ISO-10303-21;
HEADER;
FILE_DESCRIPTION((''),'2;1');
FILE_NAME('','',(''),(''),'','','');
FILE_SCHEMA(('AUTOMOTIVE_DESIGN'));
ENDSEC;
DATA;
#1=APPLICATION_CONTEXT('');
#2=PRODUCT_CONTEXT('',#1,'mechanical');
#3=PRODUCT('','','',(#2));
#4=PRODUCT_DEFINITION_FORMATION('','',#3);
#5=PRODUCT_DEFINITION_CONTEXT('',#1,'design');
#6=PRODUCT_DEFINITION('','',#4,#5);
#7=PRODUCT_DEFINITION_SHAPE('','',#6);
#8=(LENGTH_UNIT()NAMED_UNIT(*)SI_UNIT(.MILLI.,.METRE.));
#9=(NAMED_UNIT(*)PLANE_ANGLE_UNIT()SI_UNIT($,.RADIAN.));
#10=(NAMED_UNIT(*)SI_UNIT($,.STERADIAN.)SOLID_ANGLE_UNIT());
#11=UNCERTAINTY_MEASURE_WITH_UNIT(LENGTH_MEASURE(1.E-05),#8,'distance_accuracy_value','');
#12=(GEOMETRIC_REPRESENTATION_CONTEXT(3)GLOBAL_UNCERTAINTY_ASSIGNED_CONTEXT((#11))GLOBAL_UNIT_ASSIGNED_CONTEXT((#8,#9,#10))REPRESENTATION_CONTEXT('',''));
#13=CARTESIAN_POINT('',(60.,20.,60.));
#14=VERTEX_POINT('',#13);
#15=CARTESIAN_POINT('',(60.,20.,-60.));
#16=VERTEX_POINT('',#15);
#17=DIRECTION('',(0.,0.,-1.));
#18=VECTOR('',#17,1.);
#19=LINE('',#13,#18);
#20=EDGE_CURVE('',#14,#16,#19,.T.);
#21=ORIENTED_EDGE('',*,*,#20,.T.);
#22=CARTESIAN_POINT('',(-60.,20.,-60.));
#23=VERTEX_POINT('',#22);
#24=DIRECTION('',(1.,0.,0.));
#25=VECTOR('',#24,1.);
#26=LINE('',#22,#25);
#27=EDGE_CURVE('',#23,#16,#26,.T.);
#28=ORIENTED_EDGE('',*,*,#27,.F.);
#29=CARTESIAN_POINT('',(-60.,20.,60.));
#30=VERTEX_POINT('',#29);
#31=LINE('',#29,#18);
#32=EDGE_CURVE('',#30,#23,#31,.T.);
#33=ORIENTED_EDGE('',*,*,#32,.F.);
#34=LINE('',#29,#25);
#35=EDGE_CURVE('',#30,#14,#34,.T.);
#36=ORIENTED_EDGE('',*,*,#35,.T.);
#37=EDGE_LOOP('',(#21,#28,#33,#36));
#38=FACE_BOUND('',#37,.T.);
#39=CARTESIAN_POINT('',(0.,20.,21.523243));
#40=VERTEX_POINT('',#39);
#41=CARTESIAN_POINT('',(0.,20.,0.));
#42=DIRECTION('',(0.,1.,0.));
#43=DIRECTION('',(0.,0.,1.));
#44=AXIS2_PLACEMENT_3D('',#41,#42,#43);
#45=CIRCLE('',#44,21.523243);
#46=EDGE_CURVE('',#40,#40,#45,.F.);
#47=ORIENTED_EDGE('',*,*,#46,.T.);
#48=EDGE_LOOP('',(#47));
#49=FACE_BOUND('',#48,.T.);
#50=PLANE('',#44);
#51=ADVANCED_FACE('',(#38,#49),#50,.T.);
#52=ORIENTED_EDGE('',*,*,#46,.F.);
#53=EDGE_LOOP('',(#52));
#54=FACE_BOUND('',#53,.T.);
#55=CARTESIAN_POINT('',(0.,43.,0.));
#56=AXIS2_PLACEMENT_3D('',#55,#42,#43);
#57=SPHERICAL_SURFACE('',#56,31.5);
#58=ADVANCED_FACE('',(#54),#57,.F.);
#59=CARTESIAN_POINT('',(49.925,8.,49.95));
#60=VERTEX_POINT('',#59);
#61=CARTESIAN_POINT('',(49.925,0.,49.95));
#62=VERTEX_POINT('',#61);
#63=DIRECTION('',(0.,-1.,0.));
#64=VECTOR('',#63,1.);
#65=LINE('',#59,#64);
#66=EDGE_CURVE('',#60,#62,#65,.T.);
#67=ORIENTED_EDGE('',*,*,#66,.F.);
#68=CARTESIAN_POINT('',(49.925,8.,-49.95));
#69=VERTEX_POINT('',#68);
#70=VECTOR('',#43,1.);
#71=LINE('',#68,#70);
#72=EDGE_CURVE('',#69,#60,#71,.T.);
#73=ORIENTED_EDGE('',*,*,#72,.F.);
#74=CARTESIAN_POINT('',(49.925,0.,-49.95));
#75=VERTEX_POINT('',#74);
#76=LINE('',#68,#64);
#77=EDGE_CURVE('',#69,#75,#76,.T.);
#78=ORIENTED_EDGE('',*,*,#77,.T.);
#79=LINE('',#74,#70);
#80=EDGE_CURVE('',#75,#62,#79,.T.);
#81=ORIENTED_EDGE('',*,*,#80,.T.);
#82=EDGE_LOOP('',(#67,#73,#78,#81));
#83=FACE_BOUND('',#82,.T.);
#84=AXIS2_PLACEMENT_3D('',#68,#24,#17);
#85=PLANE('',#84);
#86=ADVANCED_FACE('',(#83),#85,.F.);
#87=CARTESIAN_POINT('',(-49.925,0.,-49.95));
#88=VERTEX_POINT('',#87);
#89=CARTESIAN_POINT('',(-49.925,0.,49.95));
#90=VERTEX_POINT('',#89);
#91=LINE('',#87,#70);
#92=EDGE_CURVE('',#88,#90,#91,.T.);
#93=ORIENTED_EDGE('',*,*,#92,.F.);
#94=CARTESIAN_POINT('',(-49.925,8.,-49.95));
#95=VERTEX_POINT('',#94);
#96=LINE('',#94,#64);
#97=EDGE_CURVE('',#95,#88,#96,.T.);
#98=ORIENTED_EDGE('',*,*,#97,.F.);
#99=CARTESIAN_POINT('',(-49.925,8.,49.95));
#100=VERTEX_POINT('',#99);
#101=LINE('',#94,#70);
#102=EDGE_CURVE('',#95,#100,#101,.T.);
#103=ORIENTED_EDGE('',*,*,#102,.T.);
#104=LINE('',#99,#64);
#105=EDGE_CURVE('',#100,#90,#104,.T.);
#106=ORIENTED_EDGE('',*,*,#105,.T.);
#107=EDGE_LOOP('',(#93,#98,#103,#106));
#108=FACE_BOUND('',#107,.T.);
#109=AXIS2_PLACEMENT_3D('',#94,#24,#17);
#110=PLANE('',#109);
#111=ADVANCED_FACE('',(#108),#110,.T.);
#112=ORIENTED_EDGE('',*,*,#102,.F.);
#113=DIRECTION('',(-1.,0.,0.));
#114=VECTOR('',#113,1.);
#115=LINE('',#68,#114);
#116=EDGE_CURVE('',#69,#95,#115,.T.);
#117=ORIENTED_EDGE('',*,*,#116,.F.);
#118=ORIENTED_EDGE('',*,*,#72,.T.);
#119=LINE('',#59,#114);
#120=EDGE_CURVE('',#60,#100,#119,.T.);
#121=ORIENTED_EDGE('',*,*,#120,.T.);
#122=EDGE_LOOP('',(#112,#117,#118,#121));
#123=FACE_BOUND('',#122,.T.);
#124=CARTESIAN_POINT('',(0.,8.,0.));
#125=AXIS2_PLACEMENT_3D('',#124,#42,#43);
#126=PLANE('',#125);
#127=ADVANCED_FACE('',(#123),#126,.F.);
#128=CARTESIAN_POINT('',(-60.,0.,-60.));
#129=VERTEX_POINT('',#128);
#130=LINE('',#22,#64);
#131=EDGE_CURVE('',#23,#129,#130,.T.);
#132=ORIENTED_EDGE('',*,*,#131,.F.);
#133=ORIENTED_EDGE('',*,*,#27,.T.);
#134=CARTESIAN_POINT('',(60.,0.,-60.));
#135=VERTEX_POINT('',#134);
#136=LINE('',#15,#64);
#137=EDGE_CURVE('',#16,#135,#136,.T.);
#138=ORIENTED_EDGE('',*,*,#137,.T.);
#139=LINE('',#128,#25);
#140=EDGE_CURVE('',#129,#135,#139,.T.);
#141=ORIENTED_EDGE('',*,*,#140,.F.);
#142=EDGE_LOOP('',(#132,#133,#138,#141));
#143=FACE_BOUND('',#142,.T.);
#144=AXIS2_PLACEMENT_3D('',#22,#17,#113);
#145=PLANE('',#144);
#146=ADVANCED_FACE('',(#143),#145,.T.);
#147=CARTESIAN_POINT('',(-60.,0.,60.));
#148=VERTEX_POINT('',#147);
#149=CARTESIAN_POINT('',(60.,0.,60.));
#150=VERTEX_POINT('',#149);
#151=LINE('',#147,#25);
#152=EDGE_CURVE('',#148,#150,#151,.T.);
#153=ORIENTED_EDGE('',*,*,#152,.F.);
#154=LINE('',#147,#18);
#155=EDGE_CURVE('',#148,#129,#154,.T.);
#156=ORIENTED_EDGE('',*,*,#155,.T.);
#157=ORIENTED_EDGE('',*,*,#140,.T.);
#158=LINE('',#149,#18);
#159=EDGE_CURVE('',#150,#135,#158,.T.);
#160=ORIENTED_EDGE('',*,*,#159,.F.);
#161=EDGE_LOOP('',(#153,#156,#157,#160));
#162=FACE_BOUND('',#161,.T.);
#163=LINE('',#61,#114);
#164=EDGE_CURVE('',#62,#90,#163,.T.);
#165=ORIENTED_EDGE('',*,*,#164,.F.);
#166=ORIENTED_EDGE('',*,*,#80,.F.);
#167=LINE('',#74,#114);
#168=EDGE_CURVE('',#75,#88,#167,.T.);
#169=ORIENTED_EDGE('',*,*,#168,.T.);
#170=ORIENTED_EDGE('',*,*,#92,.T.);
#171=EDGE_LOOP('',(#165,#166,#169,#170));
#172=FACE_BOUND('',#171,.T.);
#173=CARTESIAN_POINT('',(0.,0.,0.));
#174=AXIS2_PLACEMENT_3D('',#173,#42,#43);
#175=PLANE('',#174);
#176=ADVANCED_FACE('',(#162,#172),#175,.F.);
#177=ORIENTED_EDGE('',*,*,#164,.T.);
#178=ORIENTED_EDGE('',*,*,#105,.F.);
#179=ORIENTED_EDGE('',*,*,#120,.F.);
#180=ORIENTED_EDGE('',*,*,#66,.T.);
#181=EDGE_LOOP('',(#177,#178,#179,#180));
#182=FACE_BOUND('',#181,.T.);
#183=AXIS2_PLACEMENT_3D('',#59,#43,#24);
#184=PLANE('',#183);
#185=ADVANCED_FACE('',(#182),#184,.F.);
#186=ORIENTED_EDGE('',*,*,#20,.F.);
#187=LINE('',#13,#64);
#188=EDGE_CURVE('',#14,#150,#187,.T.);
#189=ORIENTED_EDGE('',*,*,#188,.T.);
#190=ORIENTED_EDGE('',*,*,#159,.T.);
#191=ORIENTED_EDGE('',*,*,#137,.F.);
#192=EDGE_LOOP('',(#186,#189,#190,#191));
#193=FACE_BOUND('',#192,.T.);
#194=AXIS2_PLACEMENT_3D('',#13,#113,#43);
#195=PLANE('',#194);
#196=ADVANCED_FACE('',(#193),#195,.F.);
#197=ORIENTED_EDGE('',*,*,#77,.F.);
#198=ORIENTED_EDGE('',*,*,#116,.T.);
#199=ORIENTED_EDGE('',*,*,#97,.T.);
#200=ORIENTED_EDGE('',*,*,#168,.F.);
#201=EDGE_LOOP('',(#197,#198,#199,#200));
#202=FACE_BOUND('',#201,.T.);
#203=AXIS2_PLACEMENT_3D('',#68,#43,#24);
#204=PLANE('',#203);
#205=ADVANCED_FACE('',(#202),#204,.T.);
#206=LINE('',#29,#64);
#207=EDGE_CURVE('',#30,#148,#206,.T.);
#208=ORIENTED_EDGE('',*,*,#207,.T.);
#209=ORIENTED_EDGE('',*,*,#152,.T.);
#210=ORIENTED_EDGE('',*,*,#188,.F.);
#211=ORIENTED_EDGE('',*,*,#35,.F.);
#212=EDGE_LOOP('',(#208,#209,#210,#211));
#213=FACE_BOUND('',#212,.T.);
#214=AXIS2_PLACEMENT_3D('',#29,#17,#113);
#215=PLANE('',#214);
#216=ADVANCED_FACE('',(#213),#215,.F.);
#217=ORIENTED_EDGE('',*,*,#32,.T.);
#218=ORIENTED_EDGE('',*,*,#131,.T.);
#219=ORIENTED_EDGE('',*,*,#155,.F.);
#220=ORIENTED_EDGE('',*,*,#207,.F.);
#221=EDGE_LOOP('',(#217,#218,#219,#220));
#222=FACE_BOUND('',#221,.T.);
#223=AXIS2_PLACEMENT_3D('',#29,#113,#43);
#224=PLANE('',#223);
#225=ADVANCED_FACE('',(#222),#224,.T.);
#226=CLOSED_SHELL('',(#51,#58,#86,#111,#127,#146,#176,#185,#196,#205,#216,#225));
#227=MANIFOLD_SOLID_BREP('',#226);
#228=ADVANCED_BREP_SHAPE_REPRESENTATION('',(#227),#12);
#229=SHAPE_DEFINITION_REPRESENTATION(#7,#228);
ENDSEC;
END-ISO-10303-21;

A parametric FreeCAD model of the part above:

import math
import FreeCAD as App
import Part
import Sketcher
from FreeCAD import Vector
Q = App.Units.Quantity


def add_polygon(sketch, points):
    """Adds a closed chain of lines whose ends are joined by coincident constraints."""
    first, n = sketch.GeometryCount, len(points)
    for a, b in zip(points, points[1:] + points[:1]):
        sketch.addGeometry(Part.LineSegment(App.Vector(*a, 0), App.Vector(*b, 0)), False)
    for i in range(n):
        sketch.addConstraint(Sketcher.Constraint("Coincident", first + i, 2, first + (i + 1) % n, 1))

doc = App.newDocument("Part")
body = doc.addObject("PartDesign::Body", "Body")

# Sketch on XZ plane
sketch1 = doc.addObject("Sketcher::SketchObject", "Sketch")
body.addObject(sketch1)
sketch1.AttachmentSupport = (doc.XZ_Plane, [""])
sketch1.MapMode = "FlatFace"
add_polygon(sketch1, [(-60, -60), (-60, 60), (60, 60), (60, -60)])  # lines 0-3
sketch1.addConstraint([
    Sketcher.Constraint("Vertical", 0),
    Sketcher.Constraint("Horizontal", 1),
    Sketcher.Constraint("Vertical", 2),
    Sketcher.Constraint("Horizontal", 3),
    Sketcher.Constraint("Symmetric", 0, 2, 2, 2, -1, 1),
    Sketcher.Constraint("Equal", 3, 0),
    Sketcher.Constraint("DistanceX", 1, 1, 1, 2, Q("120 mm")),
])
pad1 = doc.addObject("PartDesign::Pad", "Pad")
body.addObject(pad1)
pad1.Profile = sketch1
pad1.Length = 20
pad1.Reversed = True

# Sketch on XY plane
sketch2 = doc.addObject("Sketcher::SketchObject", "Sketch001")
body.addObject(sketch2)
sketch2.AttachmentSupport = (doc.XY_Plane, [""])
sketch2.MapMode = "FlatFace"
sketch2.addGeometry([
    Part.LineSegment(Vector(-32, 43, 0), Vector(32, 43, 0)),
    Part.ArcOfCircle(Part.Circle(Vector(0, 43, 0), Vector(0, 0, 1), 32), math.radians(0), math.radians(180)),
], False)
sketch2.addGeometry(Part.LineSegment(Vector(-32, 43, 0), Vector(32, 43, 0)), True)  # axis
sketch2.addConstraint([
    Sketcher.Constraint("Coincident", 0, 1, 1, 2),
    Sketcher.Constraint("Coincident", 1, 1, 0, 2),
    Sketcher.Constraint("Horizontal", 0),
    Sketcher.Constraint("Horizontal", 2),
    Sketcher.Constraint("Coincident", 2, 1, 0, 1),
    Sketcher.Constraint("PointOnObject", 1, 3, -2),
    Sketcher.Constraint("Horizontal", 1, 3, 0, 1),
    Sketcher.Constraint("Equal", 0, 2),
    Sketcher.Constraint("Radius", 1, Q("31.5 mm")),
    Sketcher.Constraint("DistanceY", -1, 1, 1, 3, Q("43 mm")),
])
groove = doc.addObject("PartDesign::Groove", "Groove")
body.addObject(groove)
groove.Profile = sketch2
groove.ReferenceAxis = (sketch2, ["Axis0"])
groove.Angle = 360

# Sketch on XZ plane
sketch3 = doc.addObject("Sketcher::SketchObject", "Sketch002")
body.addObject(sketch3)
sketch3.AttachmentSupport = (doc.XZ_Plane, [""])
sketch3.MapMode = "FlatFace"
add_polygon(sketch3, [(-50, -50), (-50, 50), (50, 50), (50, -50)])  # lines 0-3
sketch3.addConstraint([
    Sketcher.Constraint("Vertical", 0),
    Sketcher.Constraint("Horizontal", 1),
    Sketcher.Constraint("Vertical", 2),
    Sketcher.Constraint("Horizontal", 3),
    Sketcher.Constraint("Symmetric", 0, 2, 2, 2, -1, 1),
    Sketcher.Constraint("DistanceY", 0, 1, 0, 2, Q("99.9 mm")),
    Sketcher.Constraint("DistanceX", 1, 1, 1, 2, Q("99.85 mm")),
])
pocket1 = doc.addObject("PartDesign::Pocket", "Pocket")
body.addObject(pocket1)
pocket1.Profile = sketch3
pocket1.Length = 8

doc.recompute()
